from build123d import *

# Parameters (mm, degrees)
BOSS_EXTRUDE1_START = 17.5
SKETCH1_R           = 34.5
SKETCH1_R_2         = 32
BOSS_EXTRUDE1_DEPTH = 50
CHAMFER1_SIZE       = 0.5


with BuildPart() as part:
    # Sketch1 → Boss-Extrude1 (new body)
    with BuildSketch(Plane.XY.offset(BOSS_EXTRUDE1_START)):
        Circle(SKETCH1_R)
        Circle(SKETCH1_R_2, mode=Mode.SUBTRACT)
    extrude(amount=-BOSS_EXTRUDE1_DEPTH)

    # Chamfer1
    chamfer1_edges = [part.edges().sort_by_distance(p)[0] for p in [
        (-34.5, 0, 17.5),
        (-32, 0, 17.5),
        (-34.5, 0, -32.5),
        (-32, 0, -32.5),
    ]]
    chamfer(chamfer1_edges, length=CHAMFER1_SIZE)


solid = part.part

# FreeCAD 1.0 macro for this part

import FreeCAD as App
import Part
import Sketcher

V = App.Vector
Q = App.Units.Quantity


def edges_at(feature, points):
    """Names of the edges that pass closest to the given points."""
    edges = feature.Shape.Edges
    near = lambda p: min(range(len(edges)), key=lambda i: edges[i].distToShape(Part.Vertex(*p))[0])
    return sorted({f"Edge{near(p) + 1}" for p in points})

doc = App.newDocument("Part")
body = doc.addObject("PartDesign::Body", "Body")

sketch1 = body.newObject("Sketcher::SketchObject", "Sketch")
sketch1.AttachmentSupport = (doc.getObject("XY_Plane"), [""])
sketch1.MapMode = "FlatFace"
sketch1.AttachmentOffset = App.Placement(V(0, 0, 17.5), App.Rotation())
sketch1.addGeometry([
    Part.Circle(V(0, 0, 0), V(0, 0, 1), 34.5),
    Part.Circle(V(0, 0, 0), V(0, 0, 1), 32),
], False)
sketch1.addConstraint([
    Sketcher.Constraint("Coincident", 0, 3, -1, 1),
    Sketcher.Constraint("Coincident", 1, 3, -1, 1),
    Sketcher.Constraint("Diameter", 0, Q("69 mm")),
    Sketcher.Constraint("Diameter", 1, Q("64 mm")),
])
pad1 = body.newObject("PartDesign::Pad", "Pad")
pad1.Profile = sketch1
pad1.Length = 50
pad1.Reversed = True
doc.recompute()

chamfer = body.newObject("PartDesign::Chamfer", "Chamfer")
chamfer.Base = (pad1, edges_at(pad1, [
    (-34.5, 0, 17.5),
    (-32, 0, 17.5),
    (-34.5, 0, -32.5),
    (-32, 0, -32.5),
]))
chamfer.Size = 0.5

doc.recompute()
